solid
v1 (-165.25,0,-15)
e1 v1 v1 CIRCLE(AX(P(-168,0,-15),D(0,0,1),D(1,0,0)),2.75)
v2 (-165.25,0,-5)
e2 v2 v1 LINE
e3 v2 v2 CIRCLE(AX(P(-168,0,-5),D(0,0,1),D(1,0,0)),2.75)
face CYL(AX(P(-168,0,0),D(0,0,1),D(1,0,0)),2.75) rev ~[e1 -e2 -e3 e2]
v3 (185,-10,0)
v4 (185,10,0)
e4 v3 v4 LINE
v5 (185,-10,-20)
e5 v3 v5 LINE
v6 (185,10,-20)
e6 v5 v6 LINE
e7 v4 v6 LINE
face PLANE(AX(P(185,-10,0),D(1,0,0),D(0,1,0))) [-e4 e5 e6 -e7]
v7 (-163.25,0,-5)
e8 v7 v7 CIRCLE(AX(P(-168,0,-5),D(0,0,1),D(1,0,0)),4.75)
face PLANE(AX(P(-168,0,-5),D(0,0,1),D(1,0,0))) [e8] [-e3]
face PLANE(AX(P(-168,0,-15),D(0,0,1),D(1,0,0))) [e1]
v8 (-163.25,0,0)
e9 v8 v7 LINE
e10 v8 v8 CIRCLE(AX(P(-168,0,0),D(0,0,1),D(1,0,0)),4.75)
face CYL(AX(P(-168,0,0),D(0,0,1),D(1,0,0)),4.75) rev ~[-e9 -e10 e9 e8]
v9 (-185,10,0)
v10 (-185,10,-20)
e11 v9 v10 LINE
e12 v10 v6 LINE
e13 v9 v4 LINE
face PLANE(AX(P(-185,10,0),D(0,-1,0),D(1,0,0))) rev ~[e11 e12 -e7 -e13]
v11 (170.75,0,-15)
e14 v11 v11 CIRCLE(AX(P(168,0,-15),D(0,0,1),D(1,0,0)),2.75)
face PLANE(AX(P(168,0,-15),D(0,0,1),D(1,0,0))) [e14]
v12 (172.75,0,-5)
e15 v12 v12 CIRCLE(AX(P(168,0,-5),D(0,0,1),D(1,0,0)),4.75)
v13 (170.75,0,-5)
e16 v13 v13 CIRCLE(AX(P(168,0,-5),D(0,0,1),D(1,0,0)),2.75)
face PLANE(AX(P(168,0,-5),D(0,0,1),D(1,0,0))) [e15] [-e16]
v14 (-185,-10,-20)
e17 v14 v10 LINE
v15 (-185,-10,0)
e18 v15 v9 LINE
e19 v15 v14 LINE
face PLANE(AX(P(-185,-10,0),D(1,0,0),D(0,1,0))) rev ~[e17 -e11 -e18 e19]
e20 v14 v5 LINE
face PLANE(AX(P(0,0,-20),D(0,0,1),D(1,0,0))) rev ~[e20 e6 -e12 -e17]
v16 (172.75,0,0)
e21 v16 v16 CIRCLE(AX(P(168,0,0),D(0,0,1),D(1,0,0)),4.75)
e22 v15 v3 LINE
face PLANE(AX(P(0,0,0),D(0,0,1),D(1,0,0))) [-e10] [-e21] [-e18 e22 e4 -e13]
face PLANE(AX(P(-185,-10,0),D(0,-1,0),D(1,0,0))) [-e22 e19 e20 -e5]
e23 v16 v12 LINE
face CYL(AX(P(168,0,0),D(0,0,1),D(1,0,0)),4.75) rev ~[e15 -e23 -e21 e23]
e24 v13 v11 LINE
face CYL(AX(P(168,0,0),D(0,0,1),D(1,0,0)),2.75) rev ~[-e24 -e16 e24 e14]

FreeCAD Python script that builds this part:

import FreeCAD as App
import Part
import Sketcher


def add_polygon(sketch, points):
    """Adds a closed chain of lines whose ends are joined by coincident constraints."""
    first, n = sketch.GeometryCount, len(points)
    for a, b in zip(points, points[1:] + points[:1]):
        sketch.addGeometry(Part.LineSegment(App.Vector(*a, 0), App.Vector(*b, 0)), False)
    for i in range(n):
        sketch.addConstraint(Sketcher.Constraint("Coincident", first + i, 2, first + (i + 1) % n, 1))

doc = App.newDocument("Part")
body = doc.addObject("PartDesign::Body", "Body")

# Sketch on XY plane
sketch1 = body.newObject("Sketcher::SketchObject", "Sketch")
sketch1.AttachmentSupport = (doc.getObject("XY_Plane"), [""])
sketch1.MapMode = "FlatFace"
add_polygon(sketch1, [(-185, 10), (-185, -10), (185, -10), (185, 10)])  # lines 0-3
sketch1.addConstraint(Sketcher.Constraint("Vertical", 0))
sketch1.addConstraint(Sketcher.Constraint("Horizontal", 1))
sketch1.addConstraint(Sketcher.Constraint("Vertical", 2))
sketch1.addConstraint(Sketcher.Constraint("Horizontal", 3))
sketch1.addConstraint(Sketcher.Constraint("Symmetric", 0, 2, 2, 2, -1, 1))
sketch1.addConstraint(Sketcher.Constraint("DistanceX", 1, 1, 1, 2, 370.0))
sketch1.addConstraint(Sketcher.Constraint("DistanceY", 0, 2, 0, 1, 20.0))
pad1 = body.newObject("PartDesign::Pad", "Pad")
pad1.Profile = sketch1
pad1.Length = 20
pad1.Reversed = True

# Sketch on XY plane
sketch2 = body.newObject("Sketcher::SketchObject", "Sketch001")
sketch2.AttachmentSupport = (doc.getObject("XY_Plane"), [""])
sketch2.MapMode = "FlatFace"
sketch2.addGeometry(Part.Circle(App.Vector(168, 0, 0), App.Vector(0, 0, 1), 4.8), False)
sketch2.addGeometry(Part.Circle(App.Vector(-168, 0, 0), App.Vector(0, 0, 1), 4.8), False)
sketch2.addConstraint(Sketcher.Constraint("Equal", 0, 1))
sketch2.addConstraint(Sketcher.Constraint("Symmetric", 0, 3, 1, 3, -1, 1))
sketch2.addConstraint(Sketcher.Constraint("PointOnObject", 0, 3, -1))
sketch2.addConstraint(Sketcher.Constraint("Diameter", 0, 9.5))
sketch2.addConstraint(Sketcher.Constraint("DistanceX", -1, 1, 0, 3, 168.0))
pocket1 = body.newObject("PartDesign::Pocket", "Pocket")
pocket1.Profile = sketch2
pocket1.Length = 5

# Sketch on XY plane
sketch3 = body.newObject("Sketcher::SketchObject", "Sketch002")
sketch3.AttachmentSupport = (doc.getObject("XY_Plane"), [""])
sketch3.MapMode = "FlatFace"
sketch3.addGeometry(Part.Circle(App.Vector(-168, 0, 0), App.Vector(0, 0, 1), 2.8), False)
sketch3.addGeometry(Part.Circle(App.Vector(168, 0, 0), App.Vector(0, 0, 1), 2.8), False)
sketch3.addConstraint(Sketcher.Constraint("Equal", 0, 1))
sketch3.addConstraint(Sketcher.Constraint("Symmetric", 0, 3, 1, 3, -1, 1))
sketch3.addConstraint(Sketcher.Constraint("PointOnObject", 0, 3, -1))
sketch3.addConstraint(Sketcher.Constraint("Diameter", 0, 5.5))
sketch3.addConstraint(Sketcher.Constraint("DistanceX", 0, 3, -1, 1, 168.0))
pocket2 = body.newObject("PartDesign::Pocket", "Pocket001")
pocket2.Profile = sketch3
pocket2.Length = 15

doc.recompute()
